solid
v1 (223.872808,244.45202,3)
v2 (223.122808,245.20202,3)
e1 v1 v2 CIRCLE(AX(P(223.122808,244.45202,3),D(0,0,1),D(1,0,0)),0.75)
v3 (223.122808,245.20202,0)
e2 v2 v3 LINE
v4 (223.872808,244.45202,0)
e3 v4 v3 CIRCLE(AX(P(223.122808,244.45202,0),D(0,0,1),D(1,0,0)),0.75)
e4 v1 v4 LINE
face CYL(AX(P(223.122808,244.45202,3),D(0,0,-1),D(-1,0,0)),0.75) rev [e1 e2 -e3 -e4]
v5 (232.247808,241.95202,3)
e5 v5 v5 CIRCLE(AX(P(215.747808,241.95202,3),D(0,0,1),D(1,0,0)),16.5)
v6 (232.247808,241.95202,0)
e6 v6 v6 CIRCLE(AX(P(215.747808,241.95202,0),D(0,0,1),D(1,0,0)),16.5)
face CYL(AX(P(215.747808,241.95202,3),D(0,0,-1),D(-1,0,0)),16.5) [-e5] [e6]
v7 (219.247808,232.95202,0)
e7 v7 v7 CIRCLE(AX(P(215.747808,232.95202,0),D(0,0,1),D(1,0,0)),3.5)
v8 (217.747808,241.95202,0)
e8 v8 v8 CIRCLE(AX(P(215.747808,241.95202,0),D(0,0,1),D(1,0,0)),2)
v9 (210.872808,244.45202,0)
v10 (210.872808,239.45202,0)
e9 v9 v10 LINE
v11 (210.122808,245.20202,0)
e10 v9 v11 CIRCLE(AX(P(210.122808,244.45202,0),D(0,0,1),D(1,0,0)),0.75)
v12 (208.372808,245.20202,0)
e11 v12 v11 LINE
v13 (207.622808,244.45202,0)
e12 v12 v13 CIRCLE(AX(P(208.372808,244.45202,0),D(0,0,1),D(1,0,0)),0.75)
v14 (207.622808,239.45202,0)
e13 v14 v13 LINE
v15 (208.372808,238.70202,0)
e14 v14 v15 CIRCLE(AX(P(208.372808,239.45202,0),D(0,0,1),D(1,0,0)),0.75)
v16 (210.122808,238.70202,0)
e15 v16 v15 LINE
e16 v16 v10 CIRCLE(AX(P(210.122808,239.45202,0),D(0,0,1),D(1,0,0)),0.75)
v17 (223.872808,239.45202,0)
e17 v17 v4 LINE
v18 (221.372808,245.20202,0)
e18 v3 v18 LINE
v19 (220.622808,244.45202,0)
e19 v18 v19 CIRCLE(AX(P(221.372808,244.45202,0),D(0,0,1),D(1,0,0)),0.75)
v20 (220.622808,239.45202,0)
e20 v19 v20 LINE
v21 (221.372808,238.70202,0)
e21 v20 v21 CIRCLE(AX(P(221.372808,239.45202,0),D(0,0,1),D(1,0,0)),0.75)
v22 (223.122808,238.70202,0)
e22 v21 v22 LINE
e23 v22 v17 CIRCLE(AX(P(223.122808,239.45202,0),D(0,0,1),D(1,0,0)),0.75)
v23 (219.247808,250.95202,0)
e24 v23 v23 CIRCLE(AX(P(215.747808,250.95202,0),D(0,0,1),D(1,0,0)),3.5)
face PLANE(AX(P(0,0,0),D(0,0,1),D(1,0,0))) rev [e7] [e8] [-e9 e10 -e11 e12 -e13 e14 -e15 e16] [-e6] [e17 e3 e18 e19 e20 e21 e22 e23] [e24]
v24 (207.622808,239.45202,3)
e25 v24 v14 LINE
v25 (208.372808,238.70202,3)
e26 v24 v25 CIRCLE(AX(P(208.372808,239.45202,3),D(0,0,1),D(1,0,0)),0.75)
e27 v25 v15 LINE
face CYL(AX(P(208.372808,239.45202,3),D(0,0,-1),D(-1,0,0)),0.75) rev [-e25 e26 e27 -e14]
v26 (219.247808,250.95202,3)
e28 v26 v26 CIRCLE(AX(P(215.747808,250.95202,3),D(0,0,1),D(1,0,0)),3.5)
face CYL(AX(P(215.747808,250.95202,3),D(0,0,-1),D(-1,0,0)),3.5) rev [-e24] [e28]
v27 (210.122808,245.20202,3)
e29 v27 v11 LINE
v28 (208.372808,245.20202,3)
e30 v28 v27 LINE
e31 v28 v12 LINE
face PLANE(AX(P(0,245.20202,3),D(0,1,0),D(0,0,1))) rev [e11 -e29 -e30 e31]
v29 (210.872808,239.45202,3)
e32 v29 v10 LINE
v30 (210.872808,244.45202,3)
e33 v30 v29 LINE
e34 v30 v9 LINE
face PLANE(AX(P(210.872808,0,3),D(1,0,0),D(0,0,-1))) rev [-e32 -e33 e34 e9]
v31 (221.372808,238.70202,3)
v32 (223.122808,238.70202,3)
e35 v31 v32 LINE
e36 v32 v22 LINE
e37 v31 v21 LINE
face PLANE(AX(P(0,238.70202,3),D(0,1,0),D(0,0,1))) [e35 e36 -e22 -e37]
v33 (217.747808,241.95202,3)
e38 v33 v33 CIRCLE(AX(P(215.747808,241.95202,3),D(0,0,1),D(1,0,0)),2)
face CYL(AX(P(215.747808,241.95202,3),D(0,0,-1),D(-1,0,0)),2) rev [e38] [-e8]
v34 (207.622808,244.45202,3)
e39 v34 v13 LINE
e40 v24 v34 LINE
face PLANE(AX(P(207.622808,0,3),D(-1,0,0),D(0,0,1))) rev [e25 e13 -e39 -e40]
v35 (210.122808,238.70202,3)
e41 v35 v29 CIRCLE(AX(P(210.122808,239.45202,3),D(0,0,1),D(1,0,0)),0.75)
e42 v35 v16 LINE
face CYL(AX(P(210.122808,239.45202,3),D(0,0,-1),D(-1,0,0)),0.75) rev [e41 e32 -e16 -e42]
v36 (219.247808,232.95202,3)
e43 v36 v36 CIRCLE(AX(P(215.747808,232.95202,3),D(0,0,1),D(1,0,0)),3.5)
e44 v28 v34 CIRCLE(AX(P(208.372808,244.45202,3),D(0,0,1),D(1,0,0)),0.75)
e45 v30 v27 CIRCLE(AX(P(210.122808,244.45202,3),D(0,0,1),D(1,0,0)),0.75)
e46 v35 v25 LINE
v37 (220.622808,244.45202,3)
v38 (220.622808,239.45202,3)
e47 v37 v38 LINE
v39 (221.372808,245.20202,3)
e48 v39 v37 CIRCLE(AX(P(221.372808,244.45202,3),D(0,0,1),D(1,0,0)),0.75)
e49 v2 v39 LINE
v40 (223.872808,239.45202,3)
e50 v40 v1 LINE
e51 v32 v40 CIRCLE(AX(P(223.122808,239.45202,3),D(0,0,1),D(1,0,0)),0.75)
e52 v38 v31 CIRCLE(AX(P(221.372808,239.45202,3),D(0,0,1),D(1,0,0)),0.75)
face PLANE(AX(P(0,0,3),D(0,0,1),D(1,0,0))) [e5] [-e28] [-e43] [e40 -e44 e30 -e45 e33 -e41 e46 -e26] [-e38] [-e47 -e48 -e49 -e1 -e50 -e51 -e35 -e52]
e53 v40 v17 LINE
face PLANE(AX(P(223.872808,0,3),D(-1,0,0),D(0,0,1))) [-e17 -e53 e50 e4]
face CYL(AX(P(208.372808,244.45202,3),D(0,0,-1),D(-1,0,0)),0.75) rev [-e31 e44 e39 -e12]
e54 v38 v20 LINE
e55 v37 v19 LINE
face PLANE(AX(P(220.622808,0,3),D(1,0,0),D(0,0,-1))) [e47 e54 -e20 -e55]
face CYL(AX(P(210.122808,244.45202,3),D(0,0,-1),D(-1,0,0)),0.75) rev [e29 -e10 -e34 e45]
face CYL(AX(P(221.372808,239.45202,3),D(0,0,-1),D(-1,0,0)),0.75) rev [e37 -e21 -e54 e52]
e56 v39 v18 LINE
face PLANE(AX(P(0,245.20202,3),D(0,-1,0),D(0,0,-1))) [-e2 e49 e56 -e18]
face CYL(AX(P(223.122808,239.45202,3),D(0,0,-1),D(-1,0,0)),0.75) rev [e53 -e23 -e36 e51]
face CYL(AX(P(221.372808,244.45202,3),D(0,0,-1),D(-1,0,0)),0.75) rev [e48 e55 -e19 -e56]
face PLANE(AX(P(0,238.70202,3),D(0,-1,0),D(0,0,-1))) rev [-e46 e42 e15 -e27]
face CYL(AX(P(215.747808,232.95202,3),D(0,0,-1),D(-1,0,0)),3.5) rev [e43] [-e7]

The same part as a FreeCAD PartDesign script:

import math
import FreeCAD as App
import Part
import Sketcher

V = App.Vector

doc = App.newDocument("Part")
body = doc.addObject("PartDesign::Body", "Body")

# Sketch on XY plane
sketch1 = body.newObject("Sketcher::SketchObject", "Sketch")
sketch1.AttachmentSupport = (doc.getObject("XY_Plane"), [""])
sketch1.MapMode = "FlatFace"
sketch1.addGeometry([
    Part.Circle(V(215.7, 242, 0), V(0, 0, 1), 16.5),  # 0
    Part.Circle(V(215.7, 233, 0), V(0, 0, 1), 3.5),  # 1
    Part.ArcOfCircle(Part.Circle(V(210.1, 239.5, 0), V(0, 0, 1), 0.8), math.radians(-90), math.radians(0)),  # 2
    Part.LineSegment(V(210.1, 238.7, 0), V(208.4, 238.7, 0)),  # 3
    Part.ArcOfCircle(Part.Circle(V(208.4, 239.5, 0), V(0, 0, 1), 0.8), math.radians(-180), math.radians(-90)),  # 4
    Part.LineSegment(V(207.6, 239.5, 0), V(207.6, 244.5, 0)),  # 5
    Part.ArcOfCircle(Part.Circle(V(208.4, 244.5, 0), V(0, 0, 1), 0.8), math.radians(90), math.radians(180)),  # 6
    Part.LineSegment(V(208.4, 245.2, 0), V(210.1, 245.2, 0)),  # 7
    Part.ArcOfCircle(Part.Circle(V(210.1, 244.5, 0), V(0, 0, 1), 0.8), math.radians(0), math.radians(90)),  # 8
    Part.LineSegment(V(210.9, 244.5, 0), V(210.9, 239.5, 0)),  # 9
    Part.Circle(V(215.7, 242, 0), V(0, 0, 1), 2),  # 10
    Part.ArcOfCircle(Part.Circle(V(221.4, 239.5, 0), V(0, 0, 1), 0.8), math.radians(-180), math.radians(-90)),  # 11
    Part.LineSegment(V(220.6, 239.5, 0), V(220.6, 244.5, 0)),  # 12
    Part.ArcOfCircle(Part.Circle(V(221.4, 244.5, 0), V(0, 0, 1), 0.8), math.radians(90), math.radians(180)),  # 13
    Part.LineSegment(V(221.4, 245.2, 0), V(223.1, 245.2, 0)),  # 14
    Part.ArcOfCircle(Part.Circle(V(223.1, 244.5, 0), V(0, 0, 1), 0.8), math.radians(0), math.radians(90)),  # 15
    Part.LineSegment(V(223.9, 244.5, 0), V(223.9, 239.5, 0)),  # 16
    Part.ArcOfCircle(Part.Circle(V(223.1, 239.5, 0), V(0, 0, 1), 0.8), math.radians(-90), math.radians(0)),  # 17
    Part.LineSegment(V(223.1, 238.7, 0), V(221.4, 238.7, 0)),  # 18
    Part.Circle(V(215.7, 251, 0), V(0, 0, 1), 3.5),  # 19
], False)
sketch1.addConstraint([
    Sketcher.Constraint("Tangent", 2, 1, 3, 1),
    Sketcher.Constraint("Tangent", 3, 2, 4, 2),
    Sketcher.Constraint("Tangent", 4, 1, 5, 1),
    Sketcher.Constraint("Tangent", 5, 2, 6, 2),
    Sketcher.Constraint("Tangent", 6, 1, 7, 1),
    Sketcher.Constraint("Tangent", 7, 2, 8, 2),
    Sketcher.Constraint("Tangent", 8, 1, 9, 1),
    Sketcher.Constraint("Tangent", 9, 2, 2, 2),
    Sketcher.Constraint("Tangent", 11, 1, 12, 1),
    Sketcher.Constraint("Tangent", 12, 2, 13, 2),
    Sketcher.Constraint("Tangent", 13, 1, 14, 1),
    Sketcher.Constraint("Tangent", 14, 2, 15, 2),
    Sketcher.Constraint("Tangent", 15, 1, 16, 1),
    Sketcher.Constraint("Tangent", 16, 2, 17, 2),
    Sketcher.Constraint("Tangent", 17, 1, 18, 1),
    Sketcher.Constraint("Tangent", 18, 2, 11, 2),
    Sketcher.Constraint("Horizontal", 3),
    Sketcher.Constraint("Vertical", 5),
    Sketcher.Constraint("Horizontal", 7),
    Sketcher.Constraint("Vertical", 9),
    Sketcher.Constraint("Vertical", 12),
    Sketcher.Constraint("Horizontal", 14),
    Sketcher.Constraint("Vertical", 16),
    Sketcher.Constraint("Horizontal", 18),
    Sketcher.Constraint("Coincident", 10, 3, 0, 3),
    Sketcher.Constraint("Equal", 2, 4),
    Sketcher.Constraint("Equal", 4, 6),
    Sketcher.Constraint("Equal", 6, 8),
    Sketcher.Constraint("Equal", 8, 11),
    Sketcher.Constraint("Equal", 11, 13),
    Sketcher.Constraint("Equal", 13, 15),
    Sketcher.Constraint("Equal", 15, 17),
    Sketcher.Constraint("Equal", 1, 19),
    Sketcher.Constraint("Horizontal", 4, 3, 11, 3),
    Sketcher.Constraint("Horizontal", 8, 3, 13, 3),
    Sketcher.Constraint("Vertical", 0, 3, 1, 3),
    Sketcher.Constraint("Vertical", 10, 3, 19, 3),
    Sketcher.Constraint("Equal", 7, 14),
    Sketcher.Constraint("Diameter", 0, 33.0),
    Sketcher.Constraint("Diameter", 1, 7.0),
    Sketcher.Constraint("Diameter", 10, 4.0),
    Sketcher.Constraint("DistanceY", 5, 1, 5, 2, 5.0),
    Sketcher.Constraint("Radius", 2, 0.75),
    Sketcher.Constraint("DistanceY", 1, 3, 0, 3, 9.0),
    Sketcher.Constraint("DistanceX", 8, 3, 15, 3, 13.0),
    Sketcher.Constraint("DistanceY", 0, 3, 19, 3, 9.0),
    Sketcher.Constraint("DistanceX", 3, 2, 3, 1, 1.75),
    Sketcher.Constraint("DistanceY", 2, 3, 0, 3, 2.5),
    Sketcher.Constraint("DistanceX", 2, 3, 0, 3, 5.625),
    Sketcher.Constraint("DistanceY", -1, 1, 0, 3, 241.95202),
    Sketcher.Constraint("DistanceX", -1, 1, 0, 3, 215.747808),
])
pad1 = body.newObject("PartDesign::Pad", "Pad")
pad1.Profile = sketch1
pad1.Length = 3

doc.recompute()
